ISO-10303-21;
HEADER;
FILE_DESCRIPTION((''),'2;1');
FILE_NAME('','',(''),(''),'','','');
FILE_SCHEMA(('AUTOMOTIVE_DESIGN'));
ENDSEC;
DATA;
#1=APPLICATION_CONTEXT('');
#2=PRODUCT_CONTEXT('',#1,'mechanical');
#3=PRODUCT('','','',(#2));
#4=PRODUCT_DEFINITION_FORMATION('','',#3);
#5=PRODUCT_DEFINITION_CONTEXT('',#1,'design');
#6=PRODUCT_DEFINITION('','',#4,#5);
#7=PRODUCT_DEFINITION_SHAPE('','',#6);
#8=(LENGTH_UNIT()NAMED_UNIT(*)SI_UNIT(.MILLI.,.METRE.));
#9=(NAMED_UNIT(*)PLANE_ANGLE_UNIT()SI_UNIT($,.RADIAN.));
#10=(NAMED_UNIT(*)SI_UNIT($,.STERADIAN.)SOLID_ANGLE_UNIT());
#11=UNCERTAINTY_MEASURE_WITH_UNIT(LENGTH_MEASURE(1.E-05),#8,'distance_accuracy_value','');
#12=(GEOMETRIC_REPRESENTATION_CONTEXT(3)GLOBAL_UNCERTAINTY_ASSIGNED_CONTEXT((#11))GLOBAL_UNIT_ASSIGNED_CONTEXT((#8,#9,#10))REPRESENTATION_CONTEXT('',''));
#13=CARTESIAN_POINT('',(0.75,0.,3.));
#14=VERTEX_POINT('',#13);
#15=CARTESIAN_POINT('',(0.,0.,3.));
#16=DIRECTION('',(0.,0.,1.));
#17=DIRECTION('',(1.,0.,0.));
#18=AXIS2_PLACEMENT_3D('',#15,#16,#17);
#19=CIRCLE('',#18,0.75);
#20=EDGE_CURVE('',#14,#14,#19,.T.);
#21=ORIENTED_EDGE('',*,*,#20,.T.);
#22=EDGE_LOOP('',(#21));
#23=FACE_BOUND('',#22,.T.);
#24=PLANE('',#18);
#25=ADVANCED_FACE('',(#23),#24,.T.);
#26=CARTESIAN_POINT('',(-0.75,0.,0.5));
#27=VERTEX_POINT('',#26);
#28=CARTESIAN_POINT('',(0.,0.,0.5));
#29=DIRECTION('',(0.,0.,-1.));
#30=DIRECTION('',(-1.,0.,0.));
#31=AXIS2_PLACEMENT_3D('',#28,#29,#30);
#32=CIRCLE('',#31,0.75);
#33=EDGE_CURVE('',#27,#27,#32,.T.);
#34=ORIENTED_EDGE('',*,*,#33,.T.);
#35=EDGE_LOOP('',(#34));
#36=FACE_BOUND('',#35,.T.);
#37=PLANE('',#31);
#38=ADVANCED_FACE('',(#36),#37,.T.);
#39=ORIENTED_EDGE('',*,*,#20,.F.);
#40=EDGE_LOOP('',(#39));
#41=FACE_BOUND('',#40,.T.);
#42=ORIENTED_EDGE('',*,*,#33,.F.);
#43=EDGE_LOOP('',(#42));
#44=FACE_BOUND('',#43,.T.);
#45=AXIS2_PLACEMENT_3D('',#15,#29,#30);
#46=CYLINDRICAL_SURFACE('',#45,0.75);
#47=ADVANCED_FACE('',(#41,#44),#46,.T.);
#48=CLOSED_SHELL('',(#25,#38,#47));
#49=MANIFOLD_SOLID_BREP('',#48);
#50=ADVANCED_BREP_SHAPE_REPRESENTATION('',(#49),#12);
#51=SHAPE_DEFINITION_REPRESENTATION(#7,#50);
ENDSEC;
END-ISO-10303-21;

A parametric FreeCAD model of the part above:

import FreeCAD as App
import Part
import Sketcher
from FreeCAD import Vector
Q = App.Units.Quantity

doc = App.newDocument("Part")
body = doc.addObject("PartDesign::Body", "Body")

# Sketch on XY plane
sketch1 = body.newObject("Sketcher::SketchObject", "Sketch")
sketch1.AttachmentSupport = (doc.getObject("XY_Plane"), [""])
sketch1.MapMode = "FlatFace"
sketch1.addGeometry(Part.Circle(Vector(0, 0, 0), Vector(0, 0, 1), 0.8), False)
sketch1.addConstraint([
    Sketcher.Constraint("Coincident", 0, 3, -1, 1),
    Sketcher.Constraint("Diameter", 0, Q("1.5 mm")),
])
pad1 = body.newObject("PartDesign::Pad", "Pad")
pad1.Profile = sketch1
pad1.Length = 3

# Sketch on XY plane
sketch2 = body.newObject("Sketcher::SketchObject", "Sketch001")
sketch2.AttachmentSupport = (doc.getObject("XY_Plane"), [""])
sketch2.MapMode = "FlatFace"
sketch2.AttachmentOffset = App.Placement(Vector(0, 0, -1), App.Rotation())
sketch2.addGeometry(Part.Circle(Vector(0, 0, 0), Vector(0, 0, 1), 0.8), False)
sketch2.addConstraint([
    Sketcher.Constraint("Coincident", 0, 3, -1, 1),
    Sketcher.Constraint("Diameter", 0, Q("1.5 mm")),
])
pad2 = body.newObject("PartDesign::Pad", "Pad001")
pad2.Profile = sketch2
pad2.Length = 1

# Sketch on XY plane
sketch3 = body.newObject("Sketcher::SketchObject", "Sketch002")
sketch3.AttachmentSupport = (doc.getObject("XY_Plane"), [""])
sketch3.MapMode = "FlatFace"
sketch3.AttachmentOffset = App.Placement(Vector(0, 0, -2), App.Rotation())
sketch3.addGeometry(Part.Circle(Vector(0, 0, 0), Vector(0, 0, 1), 0.8), False)
sketch3.addConstraint([
    Sketcher.Constraint("Coincident", 0, 3, -1, 1),
    Sketcher.Constraint("Diameter", 0, Q("1.5 mm")),
])
pad3 = body.newObject("PartDesign::Pad", "Pad002")
pad3.Profile = sketch3
pad3.Length = 1

# Sketch on XY plane
sketch4 = body.newObject("Sketcher::SketchObject", "Sketch003")
sketch4.AttachmentSupport = (doc.getObject("XY_Plane"), [""])
sketch4.MapMode = "FlatFace"
sketch4.AttachmentOffset = App.Placement(Vector(0, 0, -2), App.Rotation())
sketch4.addGeometry(Part.Circle(Vector(0, 0, 0), Vector(0, 0, 1), 0.8), False)
sketch4.addConstraint([
    Sketcher.Constraint("Coincident", 0, 3, -1, 1),
    Sketcher.Constraint("Diameter", 0, Q("1.5 mm")),
])
pocket1 = body.newObject("PartDesign::Pocket", "Pocket")
pocket1.Profile = sketch4
pocket1.Length = 2.5
pocket1.Reversed = True

doc.recompute()
